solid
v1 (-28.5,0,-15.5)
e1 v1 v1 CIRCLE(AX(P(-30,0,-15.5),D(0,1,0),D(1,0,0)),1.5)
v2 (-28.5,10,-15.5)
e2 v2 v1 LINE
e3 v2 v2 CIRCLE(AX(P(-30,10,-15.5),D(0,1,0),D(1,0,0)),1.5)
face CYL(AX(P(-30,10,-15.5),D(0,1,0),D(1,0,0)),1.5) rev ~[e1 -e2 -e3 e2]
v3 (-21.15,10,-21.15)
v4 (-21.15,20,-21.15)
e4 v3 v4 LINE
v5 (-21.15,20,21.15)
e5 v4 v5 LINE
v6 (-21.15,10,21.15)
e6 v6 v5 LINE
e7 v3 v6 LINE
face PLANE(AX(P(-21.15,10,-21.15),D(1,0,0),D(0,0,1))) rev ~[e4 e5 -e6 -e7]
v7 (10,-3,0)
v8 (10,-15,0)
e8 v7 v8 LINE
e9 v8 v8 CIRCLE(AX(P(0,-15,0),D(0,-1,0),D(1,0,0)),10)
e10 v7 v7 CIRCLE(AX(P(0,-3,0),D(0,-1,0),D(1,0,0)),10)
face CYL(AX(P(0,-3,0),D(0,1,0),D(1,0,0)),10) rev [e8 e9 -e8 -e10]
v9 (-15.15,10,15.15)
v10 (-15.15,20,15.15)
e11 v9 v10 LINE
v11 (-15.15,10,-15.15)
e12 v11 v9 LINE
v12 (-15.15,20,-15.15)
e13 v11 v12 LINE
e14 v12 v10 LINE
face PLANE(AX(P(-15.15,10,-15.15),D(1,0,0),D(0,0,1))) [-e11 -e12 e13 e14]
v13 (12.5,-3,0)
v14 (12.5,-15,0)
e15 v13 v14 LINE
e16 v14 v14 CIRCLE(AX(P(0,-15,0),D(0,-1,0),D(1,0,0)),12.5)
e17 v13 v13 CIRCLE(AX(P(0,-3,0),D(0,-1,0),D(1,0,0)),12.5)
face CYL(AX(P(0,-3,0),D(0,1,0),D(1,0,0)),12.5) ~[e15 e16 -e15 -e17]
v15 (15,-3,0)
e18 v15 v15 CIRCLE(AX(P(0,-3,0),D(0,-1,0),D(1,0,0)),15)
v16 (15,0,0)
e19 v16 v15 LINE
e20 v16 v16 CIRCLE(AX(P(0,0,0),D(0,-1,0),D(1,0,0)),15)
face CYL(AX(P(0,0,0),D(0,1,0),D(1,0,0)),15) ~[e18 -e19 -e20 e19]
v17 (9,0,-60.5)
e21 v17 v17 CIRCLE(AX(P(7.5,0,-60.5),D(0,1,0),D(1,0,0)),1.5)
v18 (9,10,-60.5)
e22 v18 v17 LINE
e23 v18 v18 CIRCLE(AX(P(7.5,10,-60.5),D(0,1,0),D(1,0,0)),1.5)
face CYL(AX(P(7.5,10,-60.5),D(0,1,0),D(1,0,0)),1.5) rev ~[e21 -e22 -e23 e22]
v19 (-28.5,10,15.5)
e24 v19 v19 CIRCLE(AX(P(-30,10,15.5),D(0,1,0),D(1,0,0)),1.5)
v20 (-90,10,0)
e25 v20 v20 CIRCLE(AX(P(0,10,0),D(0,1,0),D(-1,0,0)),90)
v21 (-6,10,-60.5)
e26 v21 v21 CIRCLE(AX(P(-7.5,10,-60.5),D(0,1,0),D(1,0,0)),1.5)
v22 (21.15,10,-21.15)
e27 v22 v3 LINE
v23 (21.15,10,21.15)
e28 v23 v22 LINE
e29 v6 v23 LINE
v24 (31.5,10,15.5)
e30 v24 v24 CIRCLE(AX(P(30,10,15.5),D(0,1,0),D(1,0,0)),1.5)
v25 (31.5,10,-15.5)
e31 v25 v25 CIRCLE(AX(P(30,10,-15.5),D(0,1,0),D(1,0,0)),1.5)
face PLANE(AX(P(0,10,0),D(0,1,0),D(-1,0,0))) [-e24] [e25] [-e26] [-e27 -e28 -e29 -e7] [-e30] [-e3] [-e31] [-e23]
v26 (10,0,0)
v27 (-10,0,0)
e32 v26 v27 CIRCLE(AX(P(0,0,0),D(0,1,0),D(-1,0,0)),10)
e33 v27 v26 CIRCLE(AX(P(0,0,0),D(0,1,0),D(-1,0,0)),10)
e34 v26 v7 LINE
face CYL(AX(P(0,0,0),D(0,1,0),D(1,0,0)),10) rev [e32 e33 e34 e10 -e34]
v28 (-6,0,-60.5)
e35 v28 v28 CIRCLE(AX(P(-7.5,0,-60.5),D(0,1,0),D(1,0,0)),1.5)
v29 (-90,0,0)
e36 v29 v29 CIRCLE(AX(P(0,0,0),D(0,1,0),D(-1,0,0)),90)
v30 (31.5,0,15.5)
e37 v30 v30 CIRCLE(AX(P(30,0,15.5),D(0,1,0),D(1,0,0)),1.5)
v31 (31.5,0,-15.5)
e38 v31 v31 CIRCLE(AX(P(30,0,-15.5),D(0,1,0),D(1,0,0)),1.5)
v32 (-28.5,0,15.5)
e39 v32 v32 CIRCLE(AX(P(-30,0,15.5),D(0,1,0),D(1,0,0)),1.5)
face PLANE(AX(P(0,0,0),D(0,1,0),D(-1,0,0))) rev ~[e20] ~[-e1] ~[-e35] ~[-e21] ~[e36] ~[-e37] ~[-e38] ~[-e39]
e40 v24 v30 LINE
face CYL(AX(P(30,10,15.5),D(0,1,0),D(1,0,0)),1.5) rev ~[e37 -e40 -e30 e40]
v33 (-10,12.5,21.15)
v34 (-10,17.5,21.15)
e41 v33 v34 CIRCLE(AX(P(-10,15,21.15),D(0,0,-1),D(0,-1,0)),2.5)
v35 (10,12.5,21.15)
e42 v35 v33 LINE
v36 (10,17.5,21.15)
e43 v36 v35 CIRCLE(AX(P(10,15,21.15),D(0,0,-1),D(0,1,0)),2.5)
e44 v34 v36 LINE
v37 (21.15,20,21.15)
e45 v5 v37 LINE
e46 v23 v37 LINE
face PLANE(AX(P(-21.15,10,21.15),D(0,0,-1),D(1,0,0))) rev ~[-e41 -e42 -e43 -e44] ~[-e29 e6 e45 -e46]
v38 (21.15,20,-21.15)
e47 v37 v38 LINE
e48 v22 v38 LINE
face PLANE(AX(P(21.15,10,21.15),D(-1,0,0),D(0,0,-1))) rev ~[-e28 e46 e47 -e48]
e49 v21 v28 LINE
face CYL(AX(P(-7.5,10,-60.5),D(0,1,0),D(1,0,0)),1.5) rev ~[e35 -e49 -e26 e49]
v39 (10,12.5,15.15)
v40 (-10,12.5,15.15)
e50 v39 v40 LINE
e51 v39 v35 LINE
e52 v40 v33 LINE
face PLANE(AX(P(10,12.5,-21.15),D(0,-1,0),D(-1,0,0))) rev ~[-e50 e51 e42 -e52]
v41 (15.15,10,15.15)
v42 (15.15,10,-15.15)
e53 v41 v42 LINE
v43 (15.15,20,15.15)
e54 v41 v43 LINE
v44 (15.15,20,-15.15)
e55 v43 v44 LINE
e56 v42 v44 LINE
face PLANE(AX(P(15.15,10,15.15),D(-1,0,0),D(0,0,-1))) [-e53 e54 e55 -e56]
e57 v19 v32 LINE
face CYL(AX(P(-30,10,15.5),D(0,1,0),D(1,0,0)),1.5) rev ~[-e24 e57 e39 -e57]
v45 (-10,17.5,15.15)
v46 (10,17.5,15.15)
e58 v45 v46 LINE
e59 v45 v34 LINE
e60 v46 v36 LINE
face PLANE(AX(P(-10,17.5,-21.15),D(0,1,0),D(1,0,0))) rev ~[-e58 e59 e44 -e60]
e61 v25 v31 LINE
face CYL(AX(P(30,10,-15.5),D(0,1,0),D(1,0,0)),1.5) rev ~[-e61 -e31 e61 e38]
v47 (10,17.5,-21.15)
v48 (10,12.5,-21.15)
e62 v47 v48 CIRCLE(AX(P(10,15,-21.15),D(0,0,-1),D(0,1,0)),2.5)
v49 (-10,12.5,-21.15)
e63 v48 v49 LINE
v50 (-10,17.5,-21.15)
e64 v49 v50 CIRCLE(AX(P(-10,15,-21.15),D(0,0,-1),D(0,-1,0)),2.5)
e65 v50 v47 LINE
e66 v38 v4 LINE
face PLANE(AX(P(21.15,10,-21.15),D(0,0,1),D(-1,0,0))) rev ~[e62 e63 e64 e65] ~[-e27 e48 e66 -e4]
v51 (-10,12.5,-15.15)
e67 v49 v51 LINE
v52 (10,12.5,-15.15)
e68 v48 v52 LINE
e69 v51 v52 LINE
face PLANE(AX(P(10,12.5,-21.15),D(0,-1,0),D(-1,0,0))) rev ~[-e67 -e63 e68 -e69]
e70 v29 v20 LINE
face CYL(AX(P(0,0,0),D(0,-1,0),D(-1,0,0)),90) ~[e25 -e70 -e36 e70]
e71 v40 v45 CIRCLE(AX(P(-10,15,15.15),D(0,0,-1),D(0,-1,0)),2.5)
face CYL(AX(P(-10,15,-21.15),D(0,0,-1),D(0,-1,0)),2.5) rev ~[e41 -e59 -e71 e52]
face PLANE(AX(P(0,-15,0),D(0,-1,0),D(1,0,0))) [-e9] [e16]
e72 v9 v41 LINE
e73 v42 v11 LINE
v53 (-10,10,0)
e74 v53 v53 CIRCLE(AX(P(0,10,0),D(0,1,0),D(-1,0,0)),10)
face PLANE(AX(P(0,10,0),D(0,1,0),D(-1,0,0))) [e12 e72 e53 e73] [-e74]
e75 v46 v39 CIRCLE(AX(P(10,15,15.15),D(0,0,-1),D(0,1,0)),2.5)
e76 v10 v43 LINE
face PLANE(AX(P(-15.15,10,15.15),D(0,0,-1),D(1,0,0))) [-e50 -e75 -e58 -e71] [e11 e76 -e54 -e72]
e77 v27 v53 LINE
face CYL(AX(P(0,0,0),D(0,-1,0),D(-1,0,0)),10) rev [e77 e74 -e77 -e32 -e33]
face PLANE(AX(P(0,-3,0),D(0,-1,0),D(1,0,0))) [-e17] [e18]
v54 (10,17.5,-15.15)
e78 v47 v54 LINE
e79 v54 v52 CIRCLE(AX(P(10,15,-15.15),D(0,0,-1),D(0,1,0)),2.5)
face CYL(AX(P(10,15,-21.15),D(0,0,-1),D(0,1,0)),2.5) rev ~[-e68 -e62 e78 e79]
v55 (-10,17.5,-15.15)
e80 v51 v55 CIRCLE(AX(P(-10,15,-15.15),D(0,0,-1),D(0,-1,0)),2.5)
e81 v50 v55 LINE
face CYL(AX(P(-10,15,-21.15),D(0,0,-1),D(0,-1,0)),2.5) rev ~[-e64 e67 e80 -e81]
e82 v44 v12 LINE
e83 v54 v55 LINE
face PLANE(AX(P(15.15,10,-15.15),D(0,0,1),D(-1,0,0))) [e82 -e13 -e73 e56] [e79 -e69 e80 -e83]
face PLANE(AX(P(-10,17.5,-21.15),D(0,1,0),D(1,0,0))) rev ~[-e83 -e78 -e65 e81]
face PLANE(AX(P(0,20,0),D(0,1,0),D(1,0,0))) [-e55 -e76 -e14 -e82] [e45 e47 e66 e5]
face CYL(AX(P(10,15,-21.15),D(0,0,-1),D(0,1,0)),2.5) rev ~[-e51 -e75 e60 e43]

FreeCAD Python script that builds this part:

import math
import FreeCAD as App
import Part
import Sketcher
from FreeCAD import Vector
Q = App.Units.Quantity

doc = App.newDocument("Part")
body = doc.addObject("PartDesign::Body", "Body")

# Sketch on XZ plane
sketch1 = body.newObject("Sketcher::SketchObject", "Sketch")
sketch1.AttachmentSupport = (doc.getObject("XZ_Plane"), [""])
sketch1.MapMode = "FlatFace"
sketch1.addGeometry([
    Part.Circle(Vector(0, 0, 0), Vector(0, 0, 1), 90),
    Part.Circle(Vector(0, 0, 0), Vector(0, 0, 1), 10),
], False)
sketch1.addConstraint([
    Sketcher.Constraint("Coincident", 0, 3, -1, 1),
    Sketcher.Constraint("Coincident", 1, 3, -1, 1),
    Sketcher.Constraint("Diameter", 0, Q("180 mm")),
    Sketcher.Constraint("Diameter", 1, Q("20 mm")),
])
pad1 = body.newObject("PartDesign::Pad", "Pad")
pad1.Profile = sketch1
pad1.Length = 10
pad1.Reversed = True

# Sketch on XZ plane
sketch2 = body.newObject("Sketcher::SketchObject", "Sketch001")
sketch2.AttachmentSupport = (doc.getObject("XZ_Plane"), [""])
sketch2.MapMode = "FlatFace"
sketch2.addGeometry([
    Part.Circle(Vector(0, 0, 0), Vector(0, 0, 1), 15),
    Part.Circle(Vector(0, 0, 0), Vector(0, 0, 1), 10),
], False)
sketch2.addConstraint([
    Sketcher.Constraint("Coincident", 0, 3, -1, 1),
    Sketcher.Constraint("Coincident", 1, 3, -1, 1),
    Sketcher.Constraint("Diameter", 0, Q("30 mm")),
    Sketcher.Constraint("Diameter", 1, Q("20 mm")),
])
pad2 = body.newObject("PartDesign::Pad", "Pad001")
pad2.Profile = sketch2
pad2.Length = 3

# Sketch on XZ plane
sketch3 = body.newObject("Sketcher::SketchObject", "Sketch002")
sketch3.AttachmentSupport = (doc.getObject("XZ_Plane"), [""])
sketch3.MapMode = "FlatFace"
sketch3.AttachmentOffset = App.Placement(Vector(0, 0, 3), App.Rotation())
sketch3.addGeometry([
    Part.Circle(Vector(0, 0, 0), Vector(0, 0, 1), 12),
    Part.Circle(Vector(0, 0, 0), Vector(0, 0, 1), 10),
], False)
sketch3.addConstraint([
    Sketcher.Constraint("Coincident", 0, 3, -1, 1),
    Sketcher.Constraint("Coincident", 1, 3, -1, 1),
    Sketcher.Constraint("Diameter", 0, Q("25 mm")),
    Sketcher.Constraint("Diameter", 1, Q("20 mm")),
])
pad3 = body.newObject("PartDesign::Pad", "Pad002")
pad3.Profile = sketch3
pad3.Length = 12

# Sketch on XZ plane
sketch4 = body.newObject("Sketcher::SketchObject", "Sketch003")
sketch4.AttachmentSupport = (doc.getObject("XZ_Plane"), [""])
sketch4.MapMode = "FlatFace"
sketch4.AttachmentOffset = App.Placement(Vector(0, 0, -10), App.Rotation())
sketch4.addGeometry([
    Part.LineSegment(Vector(-21, -21, 0), Vector(-21, 21, 0)),  # 0
    Part.LineSegment(Vector(-21, 21, 0), Vector(21, 21, 0)),  # 1
    Part.LineSegment(Vector(21, 21, 0), Vector(21, -21, 0)),  # 2
    Part.LineSegment(Vector(21, -21, 0), Vector(-21, -21, 0)),  # 3
    Part.LineSegment(Vector(15, 15, 0), Vector(-15, 15, 0)),  # 4
    Part.LineSegment(Vector(-15, 15, 0), Vector(-15, -15, 0)),  # 5
    Part.LineSegment(Vector(-15, -15, 0), Vector(15, -15, 0)),  # 6
    Part.LineSegment(Vector(15, -15, 0), Vector(15, 15, 0)),  # 7
], False)
sketch4.addConstraint([
    Sketcher.Constraint("Coincident", 0, 2, 1, 1),
    Sketcher.Constraint("Coincident", 1, 2, 2, 1),
    Sketcher.Constraint("Coincident", 2, 2, 3, 1),
    Sketcher.Constraint("Coincident", 3, 2, 0, 1),
    Sketcher.Constraint("Coincident", 4, 2, 5, 1),
    Sketcher.Constraint("Coincident", 5, 2, 6, 1),
    Sketcher.Constraint("Coincident", 6, 2, 7, 1),
    Sketcher.Constraint("Coincident", 7, 2, 4, 1),
    Sketcher.Constraint("Vertical", 0),
    Sketcher.Constraint("Horizontal", 1),
    Sketcher.Constraint("Vertical", 2),
    Sketcher.Constraint("Horizontal", 3),
    Sketcher.Constraint("Horizontal", 4),
    Sketcher.Constraint("Vertical", 5),
    Sketcher.Constraint("Horizontal", 6),
    Sketcher.Constraint("Vertical", 7),
    Sketcher.Constraint("Symmetric", 0, 2, 2, 2, -1, 1),
    Sketcher.Constraint("Symmetric", 4, 2, 6, 2, -1, 1),
    Sketcher.Constraint("Equal", 3, 0),
    Sketcher.Constraint("Equal", 6, 5),
    Sketcher.Constraint("DistanceX", 1, 1, 1, 2, Q("42.3 mm")),
    Sketcher.Constraint("DistanceX", 0, 2, 4, 2, Q("6 mm")),
])
pad4 = body.newObject("PartDesign::Pad", "Pad003")
pad4.Profile = sketch4
pad4.Length = 10
pad4.Reversed = True

# Sketch on XY plane
sketch5 = body.newObject("Sketcher::SketchObject", "Sketch004")
sketch5.AttachmentSupport = (doc.getObject("XY_Plane"), [""])
sketch5.MapMode = "FlatFace"
sketch5.AttachmentOffset = App.Placement(Vector(0, 0, -21.15), App.Rotation())
sketch5.addGeometry([
    Part.ArcOfCircle(Part.Circle(Vector(10, 15, 0), Vector(0, 0, 1), 2.5), math.radians(-90), math.radians(90)),
    Part.LineSegment(Vector(10, 12.5, 0), Vector(-10, 12.5, 0)),
    Part.ArcOfCircle(Part.Circle(Vector(-10, 15, 0), Vector(0, 0, 1), 2.5), math.radians(90), math.radians(270)),
    Part.LineSegment(Vector(-10, 17.5, 0), Vector(10, 17.5, 0)),
], False)
sketch5.addConstraint([
    Sketcher.Constraint("Tangent", 0, 1, 1, 1),
    Sketcher.Constraint("Tangent", 1, 2, 2, 2),
    Sketcher.Constraint("Tangent", 2, 1, 3, 1),
    Sketcher.Constraint("Tangent", 3, 2, 0, 2),
    Sketcher.Constraint("Horizontal", 1),
    Sketcher.Constraint("Horizontal", 3),
    Sketcher.Constraint("Radius", 0, Q("2.5 mm")),
    Sketcher.Constraint("DistanceX", 1, 2, 1, 1, Q("20 mm")),
    Sketcher.Constraint("DistanceX", -1, 1, 0, 3, Q("10 mm")),
    Sketcher.Constraint("DistanceY", -1, 1, 0, 3, Q("15 mm")),
])
pocket1 = body.newObject("PartDesign::Pocket", "Pocket")
pocket1.Profile = sketch5
pocket1.Type = "ThroughAll"
pocket1.Reversed = True

# Sketch on XZ plane
sketch6 = body.newObject("Sketcher::SketchObject", "Sketch005")
sketch6.AttachmentSupport = (doc.getObject("XZ_Plane"), [""])
sketch6.MapMode = "FlatFace"
sketch6.AttachmentOffset = App.Placement(Vector(0, 0, -10), App.Rotation())
sketch6.addGeometry([
    Part.Circle(Vector(-30, -15.5, 0), Vector(0, 0, 1), 1.5),  # 0
    Part.Circle(Vector(30, -15.5, 0), Vector(0, 0, 1), 1.5),  # 1
    Part.Circle(Vector(-30, 15.5, 0), Vector(0, 0, 1), 1.5),  # 2
    Part.Circle(Vector(30, 15.5, 0), Vector(0, 0, 1), 1.5),  # 3
    Part.Circle(Vector(-7.5, -60.5, 0), Vector(0, 0, 1), 1.5),  # 4
    Part.Circle(Vector(7.5, -60.5, 0), Vector(0, 0, 1), 1.5),  # 5
], False)
sketch6.addConstraint([
    Sketcher.Constraint("Equal", 0, 1),
    Sketcher.Constraint("Equal", 1, 2),
    Sketcher.Constraint("Equal", 2, 3),
    Sketcher.Constraint("Equal", 3, 4),
    Sketcher.Constraint("Equal", 4, 5),
    Sketcher.Constraint("Symmetric", 1, 3, 2, 3, -1, 1),
    Sketcher.Constraint("Symmetric", 0, 3, 3, 3, -1, 1),
    Sketcher.Constraint("Symmetric", 0, 3, 1, 3, -2),
    Sketcher.Constraint("Symmetric", 4, 3, 5, 3, -2),
    Sketcher.Constraint("Diameter", 0, Q("3 mm")),
    Sketcher.Constraint("DistanceX", 0, 3, -1, 1, Q("30 mm")),
    Sketcher.Constraint("DistanceY", 0, 3, 2, 3, Q("31 mm")),
    Sketcher.Constraint("DistanceX", 4, 3, 5, 3, Q("15 mm")),
    Sketcher.Constraint("DistanceY", 4, 3, 0, 3, Q("45 mm")),
])
pocket2 = body.newObject("PartDesign::Pocket", "Pocket001")
pocket2.Profile = sketch6
pocket2.Type = "ThroughAll"
pocket2.Reversed = True

doc.recompute()
